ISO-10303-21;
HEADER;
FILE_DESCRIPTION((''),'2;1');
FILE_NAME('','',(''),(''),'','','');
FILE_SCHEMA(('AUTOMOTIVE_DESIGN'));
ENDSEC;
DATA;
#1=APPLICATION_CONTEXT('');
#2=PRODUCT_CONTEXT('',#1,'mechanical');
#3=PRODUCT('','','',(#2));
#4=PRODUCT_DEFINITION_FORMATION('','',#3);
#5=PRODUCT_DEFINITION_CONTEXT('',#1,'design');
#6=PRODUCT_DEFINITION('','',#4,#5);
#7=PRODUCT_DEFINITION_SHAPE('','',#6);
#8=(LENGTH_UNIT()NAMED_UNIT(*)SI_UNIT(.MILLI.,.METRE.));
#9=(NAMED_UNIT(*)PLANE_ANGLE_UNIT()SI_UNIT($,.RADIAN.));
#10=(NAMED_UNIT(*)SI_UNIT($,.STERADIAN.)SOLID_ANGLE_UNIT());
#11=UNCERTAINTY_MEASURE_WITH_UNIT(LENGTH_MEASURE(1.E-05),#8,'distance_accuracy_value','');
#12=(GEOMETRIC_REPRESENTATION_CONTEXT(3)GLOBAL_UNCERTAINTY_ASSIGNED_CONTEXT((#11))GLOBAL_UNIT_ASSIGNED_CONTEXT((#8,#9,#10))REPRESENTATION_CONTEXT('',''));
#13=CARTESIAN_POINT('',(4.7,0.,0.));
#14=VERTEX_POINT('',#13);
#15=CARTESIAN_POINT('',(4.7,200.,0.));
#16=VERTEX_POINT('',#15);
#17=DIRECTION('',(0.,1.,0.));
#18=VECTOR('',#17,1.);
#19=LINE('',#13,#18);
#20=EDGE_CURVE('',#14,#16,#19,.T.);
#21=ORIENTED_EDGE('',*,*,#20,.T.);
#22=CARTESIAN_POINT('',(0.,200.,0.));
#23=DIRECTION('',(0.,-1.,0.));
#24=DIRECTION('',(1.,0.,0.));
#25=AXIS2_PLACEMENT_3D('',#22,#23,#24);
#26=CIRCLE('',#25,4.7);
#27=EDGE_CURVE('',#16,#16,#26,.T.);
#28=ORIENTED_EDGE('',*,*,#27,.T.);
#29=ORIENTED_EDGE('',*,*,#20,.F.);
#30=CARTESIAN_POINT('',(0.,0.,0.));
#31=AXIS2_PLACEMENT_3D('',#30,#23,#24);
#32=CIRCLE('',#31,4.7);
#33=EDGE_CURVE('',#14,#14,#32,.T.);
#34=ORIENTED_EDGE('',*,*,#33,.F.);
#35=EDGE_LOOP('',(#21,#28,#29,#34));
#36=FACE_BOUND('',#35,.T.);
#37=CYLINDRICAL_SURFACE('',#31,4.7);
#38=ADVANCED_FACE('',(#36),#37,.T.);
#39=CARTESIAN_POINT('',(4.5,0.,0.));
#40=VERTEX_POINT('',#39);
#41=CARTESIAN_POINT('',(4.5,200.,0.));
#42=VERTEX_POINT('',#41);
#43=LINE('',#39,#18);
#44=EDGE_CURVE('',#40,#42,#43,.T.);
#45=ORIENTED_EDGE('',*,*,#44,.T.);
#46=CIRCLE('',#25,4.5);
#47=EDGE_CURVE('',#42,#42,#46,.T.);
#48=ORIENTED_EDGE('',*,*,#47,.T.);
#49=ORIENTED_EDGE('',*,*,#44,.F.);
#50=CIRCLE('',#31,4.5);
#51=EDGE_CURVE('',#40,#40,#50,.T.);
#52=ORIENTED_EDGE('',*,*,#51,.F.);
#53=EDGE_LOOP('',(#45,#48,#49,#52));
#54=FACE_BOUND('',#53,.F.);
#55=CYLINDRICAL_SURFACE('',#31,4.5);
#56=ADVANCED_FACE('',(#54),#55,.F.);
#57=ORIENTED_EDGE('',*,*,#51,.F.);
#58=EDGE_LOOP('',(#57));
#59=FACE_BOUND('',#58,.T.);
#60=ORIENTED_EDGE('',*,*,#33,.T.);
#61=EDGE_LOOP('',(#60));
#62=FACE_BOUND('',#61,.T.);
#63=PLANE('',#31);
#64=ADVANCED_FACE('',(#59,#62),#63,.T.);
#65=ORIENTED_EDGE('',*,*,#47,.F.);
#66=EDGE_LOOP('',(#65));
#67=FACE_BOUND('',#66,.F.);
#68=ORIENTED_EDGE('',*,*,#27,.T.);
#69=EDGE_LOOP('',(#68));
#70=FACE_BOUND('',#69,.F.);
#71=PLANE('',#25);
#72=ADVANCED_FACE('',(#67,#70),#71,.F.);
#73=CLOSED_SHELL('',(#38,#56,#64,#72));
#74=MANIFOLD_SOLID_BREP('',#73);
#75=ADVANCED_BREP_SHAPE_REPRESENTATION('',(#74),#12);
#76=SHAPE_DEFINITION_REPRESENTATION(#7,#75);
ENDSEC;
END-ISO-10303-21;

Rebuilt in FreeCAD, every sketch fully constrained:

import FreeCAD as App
import Part
import Sketcher
from FreeCAD import Vector
Q = App.Units.Quantity

doc = App.newDocument("Part")
params = doc.addObject("Spreadsheet::Sheet", "Params")
for row, (alias, value) in enumerate([
    ("sketch1_diameter", "9 mm"),
    ("sketch1_diameter2", "9.4 mm"),
    ("pad1_length", "200 mm"),
], start=1):
    params.set(f"A{row}", alias)
    params.set(f"B{row}", "=" + value)
    params.setAlias(f"B{row}", alias)

body = doc.addObject("PartDesign::Body", "Body")

# Sketch on XZ plane
sketch1 = doc.addObject("Sketcher::SketchObject", "Sketch")
body.addObject(sketch1)
sketch1.AttachmentSupport = (doc.XZ_Plane, [""])
sketch1.MapMode = "FlatFace"
sketch1.addGeometry([
    Part.Circle(Vector(0, 0, 0), Vector(0, 0, 1), 4.7),
    Part.Circle(Vector(0, 0, 0), Vector(0, 0, 1), 4.5),
], False)
sketch1.addConstraint([
    Sketcher.Constraint("Coincident", 0, 3, -1, 1),
    Sketcher.Constraint("Coincident", 1, 3, -1, 1),
    Sketcher.Constraint("Diameter", 1, Q("9 mm")),
    Sketcher.Constraint("Diameter", 0, Q("9.4 mm")),
])
sketch1.setExpression("Constraints[2]", "Params.sketch1_diameter")
sketch1.setExpression("Constraints[3]", "Params.sketch1_diameter2")
pad1 = doc.addObject("PartDesign::Pad", "Pad")
body.addObject(pad1)
pad1.Profile = sketch1
pad1.setExpression("Length", "Params.pad1_length")
pad1.Reversed = True
body2 = doc.addObject("PartDesign::Body", "Body001")
doc.recompute()

mirroring = doc.addObject("Part::Mirroring", "Mirroring")
mirroring.Source = body
mirroring.Base = Vector(-15, 0, 0)
mirroring.Normal = Vector(1, 0, 0)
body2.BaseFeature = mirroring
doc.recompute()
body2.Visibility = False
mirroring.Visibility = False

doc.recompute()
